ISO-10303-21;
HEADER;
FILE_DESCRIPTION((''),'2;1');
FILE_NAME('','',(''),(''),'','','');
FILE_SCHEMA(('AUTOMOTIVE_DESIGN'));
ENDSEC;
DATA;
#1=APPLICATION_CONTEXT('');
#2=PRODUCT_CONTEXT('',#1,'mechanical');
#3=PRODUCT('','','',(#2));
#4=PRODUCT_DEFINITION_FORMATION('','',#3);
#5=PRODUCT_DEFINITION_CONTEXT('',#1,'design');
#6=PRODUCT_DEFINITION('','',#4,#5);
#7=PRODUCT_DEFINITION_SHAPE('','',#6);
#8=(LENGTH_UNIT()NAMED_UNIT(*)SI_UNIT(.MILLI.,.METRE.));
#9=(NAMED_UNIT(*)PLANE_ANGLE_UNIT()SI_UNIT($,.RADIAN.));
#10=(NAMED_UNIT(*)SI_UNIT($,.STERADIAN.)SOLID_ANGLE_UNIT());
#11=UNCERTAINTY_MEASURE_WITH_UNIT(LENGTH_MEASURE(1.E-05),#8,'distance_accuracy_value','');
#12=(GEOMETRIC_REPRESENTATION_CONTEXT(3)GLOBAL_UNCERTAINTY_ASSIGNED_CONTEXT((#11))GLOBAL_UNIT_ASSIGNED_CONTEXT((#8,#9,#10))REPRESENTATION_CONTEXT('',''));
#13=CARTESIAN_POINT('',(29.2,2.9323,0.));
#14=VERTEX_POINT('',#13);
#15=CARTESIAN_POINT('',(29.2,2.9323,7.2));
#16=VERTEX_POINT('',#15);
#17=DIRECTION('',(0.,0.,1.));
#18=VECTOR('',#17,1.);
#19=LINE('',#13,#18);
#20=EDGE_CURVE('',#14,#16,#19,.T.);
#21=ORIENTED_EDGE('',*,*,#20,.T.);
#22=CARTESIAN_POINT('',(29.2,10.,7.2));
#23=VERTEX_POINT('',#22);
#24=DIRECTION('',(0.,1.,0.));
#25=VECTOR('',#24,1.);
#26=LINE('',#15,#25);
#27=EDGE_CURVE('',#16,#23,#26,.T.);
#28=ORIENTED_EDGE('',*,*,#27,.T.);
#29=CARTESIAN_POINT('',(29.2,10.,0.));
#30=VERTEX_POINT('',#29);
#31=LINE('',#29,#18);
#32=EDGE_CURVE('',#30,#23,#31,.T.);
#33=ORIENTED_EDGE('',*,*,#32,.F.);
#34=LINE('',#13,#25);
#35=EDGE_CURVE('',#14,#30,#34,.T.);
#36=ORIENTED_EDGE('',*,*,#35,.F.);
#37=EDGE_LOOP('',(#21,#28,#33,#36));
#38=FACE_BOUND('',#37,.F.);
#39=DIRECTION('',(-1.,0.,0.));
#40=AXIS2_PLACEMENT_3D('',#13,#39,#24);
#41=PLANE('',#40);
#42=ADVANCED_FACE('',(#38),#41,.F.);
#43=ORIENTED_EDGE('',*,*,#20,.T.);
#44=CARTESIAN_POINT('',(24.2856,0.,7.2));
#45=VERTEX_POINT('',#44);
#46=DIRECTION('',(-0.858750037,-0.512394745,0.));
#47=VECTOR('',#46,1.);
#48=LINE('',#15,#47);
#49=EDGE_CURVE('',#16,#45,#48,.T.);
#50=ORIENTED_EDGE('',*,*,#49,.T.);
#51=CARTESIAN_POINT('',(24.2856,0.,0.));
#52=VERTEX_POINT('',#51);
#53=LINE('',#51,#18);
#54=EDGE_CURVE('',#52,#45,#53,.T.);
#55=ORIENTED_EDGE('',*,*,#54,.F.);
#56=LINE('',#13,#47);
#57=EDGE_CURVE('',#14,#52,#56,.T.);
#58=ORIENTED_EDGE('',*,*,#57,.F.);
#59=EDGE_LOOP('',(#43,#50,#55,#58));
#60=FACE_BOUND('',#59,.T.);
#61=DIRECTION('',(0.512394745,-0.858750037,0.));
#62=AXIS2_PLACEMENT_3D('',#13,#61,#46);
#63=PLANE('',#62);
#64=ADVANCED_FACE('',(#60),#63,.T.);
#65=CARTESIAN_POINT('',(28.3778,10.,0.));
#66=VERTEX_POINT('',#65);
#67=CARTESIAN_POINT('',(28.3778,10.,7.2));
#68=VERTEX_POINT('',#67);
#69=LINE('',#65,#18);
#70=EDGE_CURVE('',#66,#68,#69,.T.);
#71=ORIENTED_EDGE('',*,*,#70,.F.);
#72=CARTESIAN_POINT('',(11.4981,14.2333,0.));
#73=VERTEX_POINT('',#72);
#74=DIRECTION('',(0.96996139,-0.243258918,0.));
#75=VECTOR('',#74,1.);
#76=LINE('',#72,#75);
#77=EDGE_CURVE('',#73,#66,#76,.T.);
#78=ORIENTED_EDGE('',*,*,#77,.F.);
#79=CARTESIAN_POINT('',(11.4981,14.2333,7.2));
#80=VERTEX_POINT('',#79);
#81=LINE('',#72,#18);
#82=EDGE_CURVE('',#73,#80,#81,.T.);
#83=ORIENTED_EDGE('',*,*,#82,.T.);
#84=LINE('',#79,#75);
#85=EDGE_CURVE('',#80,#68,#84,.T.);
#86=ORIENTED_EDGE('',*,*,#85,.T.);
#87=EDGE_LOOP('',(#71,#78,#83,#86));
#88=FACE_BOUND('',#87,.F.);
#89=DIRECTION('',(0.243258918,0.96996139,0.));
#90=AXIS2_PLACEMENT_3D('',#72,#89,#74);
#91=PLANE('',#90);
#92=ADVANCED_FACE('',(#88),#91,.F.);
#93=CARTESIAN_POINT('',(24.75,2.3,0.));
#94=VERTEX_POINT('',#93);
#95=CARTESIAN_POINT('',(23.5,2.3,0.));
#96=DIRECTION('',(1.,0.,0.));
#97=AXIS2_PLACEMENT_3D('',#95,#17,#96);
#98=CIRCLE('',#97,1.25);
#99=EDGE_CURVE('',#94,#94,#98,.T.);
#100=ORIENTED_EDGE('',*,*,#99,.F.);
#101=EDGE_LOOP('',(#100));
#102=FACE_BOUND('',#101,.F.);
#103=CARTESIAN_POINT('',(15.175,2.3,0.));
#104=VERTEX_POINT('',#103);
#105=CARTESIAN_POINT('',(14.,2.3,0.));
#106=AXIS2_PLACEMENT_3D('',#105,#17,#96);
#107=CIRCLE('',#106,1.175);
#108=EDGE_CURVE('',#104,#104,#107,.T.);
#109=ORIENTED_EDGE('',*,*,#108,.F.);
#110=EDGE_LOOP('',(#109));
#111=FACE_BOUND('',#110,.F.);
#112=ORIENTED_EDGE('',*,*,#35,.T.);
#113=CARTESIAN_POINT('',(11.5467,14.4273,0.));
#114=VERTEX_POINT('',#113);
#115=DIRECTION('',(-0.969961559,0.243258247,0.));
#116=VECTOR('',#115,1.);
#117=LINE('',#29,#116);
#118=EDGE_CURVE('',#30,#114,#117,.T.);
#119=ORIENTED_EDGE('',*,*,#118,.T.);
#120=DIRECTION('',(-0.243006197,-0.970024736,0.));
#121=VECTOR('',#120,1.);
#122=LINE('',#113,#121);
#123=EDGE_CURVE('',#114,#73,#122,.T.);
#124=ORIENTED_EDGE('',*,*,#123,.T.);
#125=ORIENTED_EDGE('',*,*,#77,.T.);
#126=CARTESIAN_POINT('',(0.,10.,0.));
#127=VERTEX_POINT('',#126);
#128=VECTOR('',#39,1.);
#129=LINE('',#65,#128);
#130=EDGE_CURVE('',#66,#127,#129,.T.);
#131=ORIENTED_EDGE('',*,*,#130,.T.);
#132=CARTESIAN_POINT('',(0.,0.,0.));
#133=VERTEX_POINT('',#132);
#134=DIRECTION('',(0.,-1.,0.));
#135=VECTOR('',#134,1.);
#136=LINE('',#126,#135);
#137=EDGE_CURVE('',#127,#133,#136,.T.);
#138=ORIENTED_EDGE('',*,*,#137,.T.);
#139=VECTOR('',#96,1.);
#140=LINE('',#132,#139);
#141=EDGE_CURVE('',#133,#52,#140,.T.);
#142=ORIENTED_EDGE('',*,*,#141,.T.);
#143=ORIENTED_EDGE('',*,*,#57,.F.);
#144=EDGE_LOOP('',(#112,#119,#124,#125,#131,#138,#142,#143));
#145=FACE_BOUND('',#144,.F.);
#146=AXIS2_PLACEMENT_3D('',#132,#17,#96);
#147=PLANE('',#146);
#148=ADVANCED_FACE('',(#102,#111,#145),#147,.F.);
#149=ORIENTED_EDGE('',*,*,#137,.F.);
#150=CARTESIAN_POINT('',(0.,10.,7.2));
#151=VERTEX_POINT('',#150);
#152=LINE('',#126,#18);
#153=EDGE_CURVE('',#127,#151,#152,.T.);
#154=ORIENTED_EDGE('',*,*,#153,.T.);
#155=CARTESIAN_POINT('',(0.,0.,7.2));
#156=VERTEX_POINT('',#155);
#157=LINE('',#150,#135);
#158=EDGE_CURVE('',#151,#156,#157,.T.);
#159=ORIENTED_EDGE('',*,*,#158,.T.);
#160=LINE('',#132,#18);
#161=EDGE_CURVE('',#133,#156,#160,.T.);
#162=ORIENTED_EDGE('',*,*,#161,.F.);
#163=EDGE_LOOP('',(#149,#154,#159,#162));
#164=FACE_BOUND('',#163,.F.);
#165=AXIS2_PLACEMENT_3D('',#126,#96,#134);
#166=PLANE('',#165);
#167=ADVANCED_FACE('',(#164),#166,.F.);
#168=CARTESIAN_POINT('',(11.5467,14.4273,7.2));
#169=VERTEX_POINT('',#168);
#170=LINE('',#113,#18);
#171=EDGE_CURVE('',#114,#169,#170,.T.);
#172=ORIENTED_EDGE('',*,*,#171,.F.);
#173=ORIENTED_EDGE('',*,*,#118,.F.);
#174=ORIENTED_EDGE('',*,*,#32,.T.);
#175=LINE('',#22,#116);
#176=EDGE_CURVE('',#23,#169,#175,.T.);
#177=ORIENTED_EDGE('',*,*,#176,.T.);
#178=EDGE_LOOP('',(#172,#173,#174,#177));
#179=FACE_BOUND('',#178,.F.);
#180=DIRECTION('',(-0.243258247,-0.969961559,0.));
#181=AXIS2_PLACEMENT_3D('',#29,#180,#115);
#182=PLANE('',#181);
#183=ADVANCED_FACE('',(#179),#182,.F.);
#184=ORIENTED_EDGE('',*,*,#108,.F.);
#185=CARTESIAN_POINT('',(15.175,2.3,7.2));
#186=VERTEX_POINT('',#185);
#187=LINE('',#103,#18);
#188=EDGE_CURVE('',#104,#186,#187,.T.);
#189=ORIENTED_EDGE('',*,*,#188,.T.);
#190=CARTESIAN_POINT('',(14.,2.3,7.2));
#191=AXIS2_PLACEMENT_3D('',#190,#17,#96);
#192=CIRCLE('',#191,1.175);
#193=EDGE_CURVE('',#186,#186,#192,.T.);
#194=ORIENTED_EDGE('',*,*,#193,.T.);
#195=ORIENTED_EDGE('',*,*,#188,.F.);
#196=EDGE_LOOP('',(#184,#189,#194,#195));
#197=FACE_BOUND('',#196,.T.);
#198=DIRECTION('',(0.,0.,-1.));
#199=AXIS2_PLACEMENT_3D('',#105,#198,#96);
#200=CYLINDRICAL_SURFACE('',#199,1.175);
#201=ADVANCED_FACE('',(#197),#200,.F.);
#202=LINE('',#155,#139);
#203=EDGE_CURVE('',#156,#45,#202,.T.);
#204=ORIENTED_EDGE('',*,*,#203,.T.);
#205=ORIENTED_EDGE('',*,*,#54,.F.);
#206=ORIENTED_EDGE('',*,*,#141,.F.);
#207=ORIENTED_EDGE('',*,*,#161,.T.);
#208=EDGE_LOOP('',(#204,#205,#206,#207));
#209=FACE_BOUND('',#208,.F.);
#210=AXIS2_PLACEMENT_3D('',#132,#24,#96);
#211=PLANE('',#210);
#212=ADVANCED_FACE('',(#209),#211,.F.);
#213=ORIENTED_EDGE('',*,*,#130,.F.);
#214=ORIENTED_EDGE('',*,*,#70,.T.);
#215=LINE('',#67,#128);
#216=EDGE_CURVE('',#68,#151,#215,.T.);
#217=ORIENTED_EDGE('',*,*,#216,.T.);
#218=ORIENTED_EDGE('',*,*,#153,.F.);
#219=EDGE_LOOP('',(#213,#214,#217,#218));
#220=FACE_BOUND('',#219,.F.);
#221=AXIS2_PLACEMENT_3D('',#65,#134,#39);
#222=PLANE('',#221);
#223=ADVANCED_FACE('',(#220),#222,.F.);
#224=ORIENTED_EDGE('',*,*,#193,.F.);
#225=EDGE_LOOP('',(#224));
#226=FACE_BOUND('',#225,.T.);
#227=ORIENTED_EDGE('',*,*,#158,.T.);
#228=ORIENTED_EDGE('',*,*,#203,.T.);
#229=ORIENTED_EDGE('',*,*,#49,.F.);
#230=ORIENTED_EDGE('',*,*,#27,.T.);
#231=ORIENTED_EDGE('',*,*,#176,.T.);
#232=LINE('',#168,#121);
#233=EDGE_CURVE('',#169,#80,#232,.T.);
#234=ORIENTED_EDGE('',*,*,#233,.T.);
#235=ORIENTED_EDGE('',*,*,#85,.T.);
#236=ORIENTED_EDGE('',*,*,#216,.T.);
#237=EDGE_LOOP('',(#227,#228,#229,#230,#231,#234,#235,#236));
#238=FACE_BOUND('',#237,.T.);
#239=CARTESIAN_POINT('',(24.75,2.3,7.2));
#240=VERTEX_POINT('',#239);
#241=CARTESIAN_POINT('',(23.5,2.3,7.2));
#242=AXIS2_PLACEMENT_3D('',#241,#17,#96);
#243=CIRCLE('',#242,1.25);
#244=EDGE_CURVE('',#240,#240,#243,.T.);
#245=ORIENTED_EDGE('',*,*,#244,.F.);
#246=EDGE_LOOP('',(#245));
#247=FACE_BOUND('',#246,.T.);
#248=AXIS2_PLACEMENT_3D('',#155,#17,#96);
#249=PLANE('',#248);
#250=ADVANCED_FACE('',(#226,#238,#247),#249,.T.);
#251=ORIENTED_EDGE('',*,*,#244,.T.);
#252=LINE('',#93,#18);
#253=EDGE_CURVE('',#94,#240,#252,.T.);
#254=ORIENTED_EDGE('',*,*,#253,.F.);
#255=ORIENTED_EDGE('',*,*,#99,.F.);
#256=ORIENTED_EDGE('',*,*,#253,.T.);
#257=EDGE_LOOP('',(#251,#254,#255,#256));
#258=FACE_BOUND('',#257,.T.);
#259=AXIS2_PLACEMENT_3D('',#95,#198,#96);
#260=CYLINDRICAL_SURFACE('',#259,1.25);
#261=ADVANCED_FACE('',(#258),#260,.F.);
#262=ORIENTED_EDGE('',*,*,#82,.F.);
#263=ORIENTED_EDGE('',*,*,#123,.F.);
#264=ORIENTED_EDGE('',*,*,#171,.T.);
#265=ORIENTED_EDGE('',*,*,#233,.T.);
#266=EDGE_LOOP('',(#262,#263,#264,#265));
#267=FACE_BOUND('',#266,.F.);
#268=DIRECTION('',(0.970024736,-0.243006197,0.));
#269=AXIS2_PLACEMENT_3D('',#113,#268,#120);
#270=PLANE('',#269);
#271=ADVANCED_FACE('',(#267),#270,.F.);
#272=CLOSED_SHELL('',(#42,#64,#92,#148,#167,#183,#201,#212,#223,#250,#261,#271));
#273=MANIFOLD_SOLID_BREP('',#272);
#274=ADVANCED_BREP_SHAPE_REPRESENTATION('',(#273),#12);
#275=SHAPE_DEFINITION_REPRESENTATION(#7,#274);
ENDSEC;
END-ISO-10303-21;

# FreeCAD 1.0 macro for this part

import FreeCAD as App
import Part
import Sketcher
from FreeCAD import Vector
Q = App.Units.Quantity


def add_polygon(sketch, points):
    """Adds a closed chain of lines whose ends are joined by coincident constraints."""
    first, n = sketch.GeometryCount, len(points)
    for a, b in zip(points, points[1:] + points[:1]):
        sketch.addGeometry(Part.LineSegment(App.Vector(*a, 0), App.Vector(*b, 0)), False)
    for i in range(n):
        sketch.addConstraint(Sketcher.Constraint("Coincident", first + i, 2, first + (i + 1) % n, 1))

doc = App.newDocument("Part")
params = doc.addObject("Spreadsheet::Sheet", "Params")
for row, (alias, value) in enumerate([
    ("sketch1_diameter", "2.5 mm"),
    ("sketch1_diameter2", "2.35 mm"),
    ("sketch1_length", "18.2 mm"),
    ("sketch1_length2", "0.2 mm"),
    ("sketch1_height", "10 mm"),
    ("pad1_length", "7.2 mm"),
], start=1):
    params.set(f"A{row}", alias)
    params.set(f"B{row}", "=" + value)
    params.setAlias(f"B{row}", alias)

body = doc.addObject("PartDesign::Body", "Body")

# Sketch on XY plane
sketch1 = body.newObject("Sketcher::SketchObject", "Sketch")
sketch1.AttachmentSupport = (doc.getObject("XY_Plane"), [""])
sketch1.MapMode = "FlatFace"
add_polygon(sketch1, [(0, 10), (0, 0), (24.29, 0), (29.2, 2.93), (29.2, 10), (11.55, 14.43), (11.5, 14.23), (28.38, 10)])  # lines 0-7
sketch1.addGeometry(Part.Circle(Vector(14, 2.3, 0), Vector(0, 0, 1), 1.18), False)  # 8
sketch1.addGeometry(Part.Circle(Vector(23.5, 2.3, 0), Vector(0, 0, 1), 1.25), False)  # 9
sketch1.addConstraint([
    Sketcher.Constraint("Vertical", 0),
    Sketcher.Constraint("Horizontal", 1),
    Sketcher.Constraint("Vertical", 3),
    Sketcher.Constraint("Horizontal", 7),
    Sketcher.Constraint("Coincident", 0, 2, -1, 1),
    Sketcher.Constraint("Perpendicular", 4, 5),
    Sketcher.Constraint("Perpendicular", 5, 6),
    Sketcher.Constraint("Horizontal", 8, 3, 9, 3),
    Sketcher.Constraint("Horizontal", 3, 2, 6, 2),
    Sketcher.Constraint("Diameter", 9, Q("2.5 mm")),
    Sketcher.Constraint("Diameter", 8, Q("2.35 mm")),
    Sketcher.Constraint("Distance", 4, Q("18.2 mm")),
    Sketcher.Constraint("Distance", 5, Q("0.2 mm")),
    Sketcher.Constraint("DistanceY", 0, 2, 0, 1, Q("10 mm")),
    Sketcher.Constraint("DistanceX", -1, 1, 8, 3, Q("14 mm")),
    Sketcher.Constraint("DistanceY", -1, 1, 8, 3, Q("2.3 mm")),
    Sketcher.Constraint("DistanceX", -1, 1, 9, 3, Q("23.5 mm")),
    Sketcher.Constraint("DistanceX", -1, 1, 2, 2, Q("29.2 mm")),
    Sketcher.Constraint("Angle", 4, Q("165.921 deg")),
    Sketcher.Constraint("DistanceX", 1, 1, 1, 2, Q("24.2856 mm")),
    Sketcher.Constraint("DistanceY", 3, 1, 3, 2, Q("7.0677 mm")),
])
sketch1.setExpression("Constraints[17]", "Params.sketch1_diameter")
sketch1.setExpression("Constraints[18]", "Params.sketch1_diameter2")
sketch1.setExpression("Constraints[19]", "Params.sketch1_length")
sketch1.setExpression("Constraints[20]", "Params.sketch1_length2")
sketch1.setExpression("Constraints[21]", "Params.sketch1_height")
pad1 = body.newObject("PartDesign::Pad", "Pad")
pad1.Profile = sketch1
pad1.setExpression("Length", "Params.pad1_length")

doc.recompute()
